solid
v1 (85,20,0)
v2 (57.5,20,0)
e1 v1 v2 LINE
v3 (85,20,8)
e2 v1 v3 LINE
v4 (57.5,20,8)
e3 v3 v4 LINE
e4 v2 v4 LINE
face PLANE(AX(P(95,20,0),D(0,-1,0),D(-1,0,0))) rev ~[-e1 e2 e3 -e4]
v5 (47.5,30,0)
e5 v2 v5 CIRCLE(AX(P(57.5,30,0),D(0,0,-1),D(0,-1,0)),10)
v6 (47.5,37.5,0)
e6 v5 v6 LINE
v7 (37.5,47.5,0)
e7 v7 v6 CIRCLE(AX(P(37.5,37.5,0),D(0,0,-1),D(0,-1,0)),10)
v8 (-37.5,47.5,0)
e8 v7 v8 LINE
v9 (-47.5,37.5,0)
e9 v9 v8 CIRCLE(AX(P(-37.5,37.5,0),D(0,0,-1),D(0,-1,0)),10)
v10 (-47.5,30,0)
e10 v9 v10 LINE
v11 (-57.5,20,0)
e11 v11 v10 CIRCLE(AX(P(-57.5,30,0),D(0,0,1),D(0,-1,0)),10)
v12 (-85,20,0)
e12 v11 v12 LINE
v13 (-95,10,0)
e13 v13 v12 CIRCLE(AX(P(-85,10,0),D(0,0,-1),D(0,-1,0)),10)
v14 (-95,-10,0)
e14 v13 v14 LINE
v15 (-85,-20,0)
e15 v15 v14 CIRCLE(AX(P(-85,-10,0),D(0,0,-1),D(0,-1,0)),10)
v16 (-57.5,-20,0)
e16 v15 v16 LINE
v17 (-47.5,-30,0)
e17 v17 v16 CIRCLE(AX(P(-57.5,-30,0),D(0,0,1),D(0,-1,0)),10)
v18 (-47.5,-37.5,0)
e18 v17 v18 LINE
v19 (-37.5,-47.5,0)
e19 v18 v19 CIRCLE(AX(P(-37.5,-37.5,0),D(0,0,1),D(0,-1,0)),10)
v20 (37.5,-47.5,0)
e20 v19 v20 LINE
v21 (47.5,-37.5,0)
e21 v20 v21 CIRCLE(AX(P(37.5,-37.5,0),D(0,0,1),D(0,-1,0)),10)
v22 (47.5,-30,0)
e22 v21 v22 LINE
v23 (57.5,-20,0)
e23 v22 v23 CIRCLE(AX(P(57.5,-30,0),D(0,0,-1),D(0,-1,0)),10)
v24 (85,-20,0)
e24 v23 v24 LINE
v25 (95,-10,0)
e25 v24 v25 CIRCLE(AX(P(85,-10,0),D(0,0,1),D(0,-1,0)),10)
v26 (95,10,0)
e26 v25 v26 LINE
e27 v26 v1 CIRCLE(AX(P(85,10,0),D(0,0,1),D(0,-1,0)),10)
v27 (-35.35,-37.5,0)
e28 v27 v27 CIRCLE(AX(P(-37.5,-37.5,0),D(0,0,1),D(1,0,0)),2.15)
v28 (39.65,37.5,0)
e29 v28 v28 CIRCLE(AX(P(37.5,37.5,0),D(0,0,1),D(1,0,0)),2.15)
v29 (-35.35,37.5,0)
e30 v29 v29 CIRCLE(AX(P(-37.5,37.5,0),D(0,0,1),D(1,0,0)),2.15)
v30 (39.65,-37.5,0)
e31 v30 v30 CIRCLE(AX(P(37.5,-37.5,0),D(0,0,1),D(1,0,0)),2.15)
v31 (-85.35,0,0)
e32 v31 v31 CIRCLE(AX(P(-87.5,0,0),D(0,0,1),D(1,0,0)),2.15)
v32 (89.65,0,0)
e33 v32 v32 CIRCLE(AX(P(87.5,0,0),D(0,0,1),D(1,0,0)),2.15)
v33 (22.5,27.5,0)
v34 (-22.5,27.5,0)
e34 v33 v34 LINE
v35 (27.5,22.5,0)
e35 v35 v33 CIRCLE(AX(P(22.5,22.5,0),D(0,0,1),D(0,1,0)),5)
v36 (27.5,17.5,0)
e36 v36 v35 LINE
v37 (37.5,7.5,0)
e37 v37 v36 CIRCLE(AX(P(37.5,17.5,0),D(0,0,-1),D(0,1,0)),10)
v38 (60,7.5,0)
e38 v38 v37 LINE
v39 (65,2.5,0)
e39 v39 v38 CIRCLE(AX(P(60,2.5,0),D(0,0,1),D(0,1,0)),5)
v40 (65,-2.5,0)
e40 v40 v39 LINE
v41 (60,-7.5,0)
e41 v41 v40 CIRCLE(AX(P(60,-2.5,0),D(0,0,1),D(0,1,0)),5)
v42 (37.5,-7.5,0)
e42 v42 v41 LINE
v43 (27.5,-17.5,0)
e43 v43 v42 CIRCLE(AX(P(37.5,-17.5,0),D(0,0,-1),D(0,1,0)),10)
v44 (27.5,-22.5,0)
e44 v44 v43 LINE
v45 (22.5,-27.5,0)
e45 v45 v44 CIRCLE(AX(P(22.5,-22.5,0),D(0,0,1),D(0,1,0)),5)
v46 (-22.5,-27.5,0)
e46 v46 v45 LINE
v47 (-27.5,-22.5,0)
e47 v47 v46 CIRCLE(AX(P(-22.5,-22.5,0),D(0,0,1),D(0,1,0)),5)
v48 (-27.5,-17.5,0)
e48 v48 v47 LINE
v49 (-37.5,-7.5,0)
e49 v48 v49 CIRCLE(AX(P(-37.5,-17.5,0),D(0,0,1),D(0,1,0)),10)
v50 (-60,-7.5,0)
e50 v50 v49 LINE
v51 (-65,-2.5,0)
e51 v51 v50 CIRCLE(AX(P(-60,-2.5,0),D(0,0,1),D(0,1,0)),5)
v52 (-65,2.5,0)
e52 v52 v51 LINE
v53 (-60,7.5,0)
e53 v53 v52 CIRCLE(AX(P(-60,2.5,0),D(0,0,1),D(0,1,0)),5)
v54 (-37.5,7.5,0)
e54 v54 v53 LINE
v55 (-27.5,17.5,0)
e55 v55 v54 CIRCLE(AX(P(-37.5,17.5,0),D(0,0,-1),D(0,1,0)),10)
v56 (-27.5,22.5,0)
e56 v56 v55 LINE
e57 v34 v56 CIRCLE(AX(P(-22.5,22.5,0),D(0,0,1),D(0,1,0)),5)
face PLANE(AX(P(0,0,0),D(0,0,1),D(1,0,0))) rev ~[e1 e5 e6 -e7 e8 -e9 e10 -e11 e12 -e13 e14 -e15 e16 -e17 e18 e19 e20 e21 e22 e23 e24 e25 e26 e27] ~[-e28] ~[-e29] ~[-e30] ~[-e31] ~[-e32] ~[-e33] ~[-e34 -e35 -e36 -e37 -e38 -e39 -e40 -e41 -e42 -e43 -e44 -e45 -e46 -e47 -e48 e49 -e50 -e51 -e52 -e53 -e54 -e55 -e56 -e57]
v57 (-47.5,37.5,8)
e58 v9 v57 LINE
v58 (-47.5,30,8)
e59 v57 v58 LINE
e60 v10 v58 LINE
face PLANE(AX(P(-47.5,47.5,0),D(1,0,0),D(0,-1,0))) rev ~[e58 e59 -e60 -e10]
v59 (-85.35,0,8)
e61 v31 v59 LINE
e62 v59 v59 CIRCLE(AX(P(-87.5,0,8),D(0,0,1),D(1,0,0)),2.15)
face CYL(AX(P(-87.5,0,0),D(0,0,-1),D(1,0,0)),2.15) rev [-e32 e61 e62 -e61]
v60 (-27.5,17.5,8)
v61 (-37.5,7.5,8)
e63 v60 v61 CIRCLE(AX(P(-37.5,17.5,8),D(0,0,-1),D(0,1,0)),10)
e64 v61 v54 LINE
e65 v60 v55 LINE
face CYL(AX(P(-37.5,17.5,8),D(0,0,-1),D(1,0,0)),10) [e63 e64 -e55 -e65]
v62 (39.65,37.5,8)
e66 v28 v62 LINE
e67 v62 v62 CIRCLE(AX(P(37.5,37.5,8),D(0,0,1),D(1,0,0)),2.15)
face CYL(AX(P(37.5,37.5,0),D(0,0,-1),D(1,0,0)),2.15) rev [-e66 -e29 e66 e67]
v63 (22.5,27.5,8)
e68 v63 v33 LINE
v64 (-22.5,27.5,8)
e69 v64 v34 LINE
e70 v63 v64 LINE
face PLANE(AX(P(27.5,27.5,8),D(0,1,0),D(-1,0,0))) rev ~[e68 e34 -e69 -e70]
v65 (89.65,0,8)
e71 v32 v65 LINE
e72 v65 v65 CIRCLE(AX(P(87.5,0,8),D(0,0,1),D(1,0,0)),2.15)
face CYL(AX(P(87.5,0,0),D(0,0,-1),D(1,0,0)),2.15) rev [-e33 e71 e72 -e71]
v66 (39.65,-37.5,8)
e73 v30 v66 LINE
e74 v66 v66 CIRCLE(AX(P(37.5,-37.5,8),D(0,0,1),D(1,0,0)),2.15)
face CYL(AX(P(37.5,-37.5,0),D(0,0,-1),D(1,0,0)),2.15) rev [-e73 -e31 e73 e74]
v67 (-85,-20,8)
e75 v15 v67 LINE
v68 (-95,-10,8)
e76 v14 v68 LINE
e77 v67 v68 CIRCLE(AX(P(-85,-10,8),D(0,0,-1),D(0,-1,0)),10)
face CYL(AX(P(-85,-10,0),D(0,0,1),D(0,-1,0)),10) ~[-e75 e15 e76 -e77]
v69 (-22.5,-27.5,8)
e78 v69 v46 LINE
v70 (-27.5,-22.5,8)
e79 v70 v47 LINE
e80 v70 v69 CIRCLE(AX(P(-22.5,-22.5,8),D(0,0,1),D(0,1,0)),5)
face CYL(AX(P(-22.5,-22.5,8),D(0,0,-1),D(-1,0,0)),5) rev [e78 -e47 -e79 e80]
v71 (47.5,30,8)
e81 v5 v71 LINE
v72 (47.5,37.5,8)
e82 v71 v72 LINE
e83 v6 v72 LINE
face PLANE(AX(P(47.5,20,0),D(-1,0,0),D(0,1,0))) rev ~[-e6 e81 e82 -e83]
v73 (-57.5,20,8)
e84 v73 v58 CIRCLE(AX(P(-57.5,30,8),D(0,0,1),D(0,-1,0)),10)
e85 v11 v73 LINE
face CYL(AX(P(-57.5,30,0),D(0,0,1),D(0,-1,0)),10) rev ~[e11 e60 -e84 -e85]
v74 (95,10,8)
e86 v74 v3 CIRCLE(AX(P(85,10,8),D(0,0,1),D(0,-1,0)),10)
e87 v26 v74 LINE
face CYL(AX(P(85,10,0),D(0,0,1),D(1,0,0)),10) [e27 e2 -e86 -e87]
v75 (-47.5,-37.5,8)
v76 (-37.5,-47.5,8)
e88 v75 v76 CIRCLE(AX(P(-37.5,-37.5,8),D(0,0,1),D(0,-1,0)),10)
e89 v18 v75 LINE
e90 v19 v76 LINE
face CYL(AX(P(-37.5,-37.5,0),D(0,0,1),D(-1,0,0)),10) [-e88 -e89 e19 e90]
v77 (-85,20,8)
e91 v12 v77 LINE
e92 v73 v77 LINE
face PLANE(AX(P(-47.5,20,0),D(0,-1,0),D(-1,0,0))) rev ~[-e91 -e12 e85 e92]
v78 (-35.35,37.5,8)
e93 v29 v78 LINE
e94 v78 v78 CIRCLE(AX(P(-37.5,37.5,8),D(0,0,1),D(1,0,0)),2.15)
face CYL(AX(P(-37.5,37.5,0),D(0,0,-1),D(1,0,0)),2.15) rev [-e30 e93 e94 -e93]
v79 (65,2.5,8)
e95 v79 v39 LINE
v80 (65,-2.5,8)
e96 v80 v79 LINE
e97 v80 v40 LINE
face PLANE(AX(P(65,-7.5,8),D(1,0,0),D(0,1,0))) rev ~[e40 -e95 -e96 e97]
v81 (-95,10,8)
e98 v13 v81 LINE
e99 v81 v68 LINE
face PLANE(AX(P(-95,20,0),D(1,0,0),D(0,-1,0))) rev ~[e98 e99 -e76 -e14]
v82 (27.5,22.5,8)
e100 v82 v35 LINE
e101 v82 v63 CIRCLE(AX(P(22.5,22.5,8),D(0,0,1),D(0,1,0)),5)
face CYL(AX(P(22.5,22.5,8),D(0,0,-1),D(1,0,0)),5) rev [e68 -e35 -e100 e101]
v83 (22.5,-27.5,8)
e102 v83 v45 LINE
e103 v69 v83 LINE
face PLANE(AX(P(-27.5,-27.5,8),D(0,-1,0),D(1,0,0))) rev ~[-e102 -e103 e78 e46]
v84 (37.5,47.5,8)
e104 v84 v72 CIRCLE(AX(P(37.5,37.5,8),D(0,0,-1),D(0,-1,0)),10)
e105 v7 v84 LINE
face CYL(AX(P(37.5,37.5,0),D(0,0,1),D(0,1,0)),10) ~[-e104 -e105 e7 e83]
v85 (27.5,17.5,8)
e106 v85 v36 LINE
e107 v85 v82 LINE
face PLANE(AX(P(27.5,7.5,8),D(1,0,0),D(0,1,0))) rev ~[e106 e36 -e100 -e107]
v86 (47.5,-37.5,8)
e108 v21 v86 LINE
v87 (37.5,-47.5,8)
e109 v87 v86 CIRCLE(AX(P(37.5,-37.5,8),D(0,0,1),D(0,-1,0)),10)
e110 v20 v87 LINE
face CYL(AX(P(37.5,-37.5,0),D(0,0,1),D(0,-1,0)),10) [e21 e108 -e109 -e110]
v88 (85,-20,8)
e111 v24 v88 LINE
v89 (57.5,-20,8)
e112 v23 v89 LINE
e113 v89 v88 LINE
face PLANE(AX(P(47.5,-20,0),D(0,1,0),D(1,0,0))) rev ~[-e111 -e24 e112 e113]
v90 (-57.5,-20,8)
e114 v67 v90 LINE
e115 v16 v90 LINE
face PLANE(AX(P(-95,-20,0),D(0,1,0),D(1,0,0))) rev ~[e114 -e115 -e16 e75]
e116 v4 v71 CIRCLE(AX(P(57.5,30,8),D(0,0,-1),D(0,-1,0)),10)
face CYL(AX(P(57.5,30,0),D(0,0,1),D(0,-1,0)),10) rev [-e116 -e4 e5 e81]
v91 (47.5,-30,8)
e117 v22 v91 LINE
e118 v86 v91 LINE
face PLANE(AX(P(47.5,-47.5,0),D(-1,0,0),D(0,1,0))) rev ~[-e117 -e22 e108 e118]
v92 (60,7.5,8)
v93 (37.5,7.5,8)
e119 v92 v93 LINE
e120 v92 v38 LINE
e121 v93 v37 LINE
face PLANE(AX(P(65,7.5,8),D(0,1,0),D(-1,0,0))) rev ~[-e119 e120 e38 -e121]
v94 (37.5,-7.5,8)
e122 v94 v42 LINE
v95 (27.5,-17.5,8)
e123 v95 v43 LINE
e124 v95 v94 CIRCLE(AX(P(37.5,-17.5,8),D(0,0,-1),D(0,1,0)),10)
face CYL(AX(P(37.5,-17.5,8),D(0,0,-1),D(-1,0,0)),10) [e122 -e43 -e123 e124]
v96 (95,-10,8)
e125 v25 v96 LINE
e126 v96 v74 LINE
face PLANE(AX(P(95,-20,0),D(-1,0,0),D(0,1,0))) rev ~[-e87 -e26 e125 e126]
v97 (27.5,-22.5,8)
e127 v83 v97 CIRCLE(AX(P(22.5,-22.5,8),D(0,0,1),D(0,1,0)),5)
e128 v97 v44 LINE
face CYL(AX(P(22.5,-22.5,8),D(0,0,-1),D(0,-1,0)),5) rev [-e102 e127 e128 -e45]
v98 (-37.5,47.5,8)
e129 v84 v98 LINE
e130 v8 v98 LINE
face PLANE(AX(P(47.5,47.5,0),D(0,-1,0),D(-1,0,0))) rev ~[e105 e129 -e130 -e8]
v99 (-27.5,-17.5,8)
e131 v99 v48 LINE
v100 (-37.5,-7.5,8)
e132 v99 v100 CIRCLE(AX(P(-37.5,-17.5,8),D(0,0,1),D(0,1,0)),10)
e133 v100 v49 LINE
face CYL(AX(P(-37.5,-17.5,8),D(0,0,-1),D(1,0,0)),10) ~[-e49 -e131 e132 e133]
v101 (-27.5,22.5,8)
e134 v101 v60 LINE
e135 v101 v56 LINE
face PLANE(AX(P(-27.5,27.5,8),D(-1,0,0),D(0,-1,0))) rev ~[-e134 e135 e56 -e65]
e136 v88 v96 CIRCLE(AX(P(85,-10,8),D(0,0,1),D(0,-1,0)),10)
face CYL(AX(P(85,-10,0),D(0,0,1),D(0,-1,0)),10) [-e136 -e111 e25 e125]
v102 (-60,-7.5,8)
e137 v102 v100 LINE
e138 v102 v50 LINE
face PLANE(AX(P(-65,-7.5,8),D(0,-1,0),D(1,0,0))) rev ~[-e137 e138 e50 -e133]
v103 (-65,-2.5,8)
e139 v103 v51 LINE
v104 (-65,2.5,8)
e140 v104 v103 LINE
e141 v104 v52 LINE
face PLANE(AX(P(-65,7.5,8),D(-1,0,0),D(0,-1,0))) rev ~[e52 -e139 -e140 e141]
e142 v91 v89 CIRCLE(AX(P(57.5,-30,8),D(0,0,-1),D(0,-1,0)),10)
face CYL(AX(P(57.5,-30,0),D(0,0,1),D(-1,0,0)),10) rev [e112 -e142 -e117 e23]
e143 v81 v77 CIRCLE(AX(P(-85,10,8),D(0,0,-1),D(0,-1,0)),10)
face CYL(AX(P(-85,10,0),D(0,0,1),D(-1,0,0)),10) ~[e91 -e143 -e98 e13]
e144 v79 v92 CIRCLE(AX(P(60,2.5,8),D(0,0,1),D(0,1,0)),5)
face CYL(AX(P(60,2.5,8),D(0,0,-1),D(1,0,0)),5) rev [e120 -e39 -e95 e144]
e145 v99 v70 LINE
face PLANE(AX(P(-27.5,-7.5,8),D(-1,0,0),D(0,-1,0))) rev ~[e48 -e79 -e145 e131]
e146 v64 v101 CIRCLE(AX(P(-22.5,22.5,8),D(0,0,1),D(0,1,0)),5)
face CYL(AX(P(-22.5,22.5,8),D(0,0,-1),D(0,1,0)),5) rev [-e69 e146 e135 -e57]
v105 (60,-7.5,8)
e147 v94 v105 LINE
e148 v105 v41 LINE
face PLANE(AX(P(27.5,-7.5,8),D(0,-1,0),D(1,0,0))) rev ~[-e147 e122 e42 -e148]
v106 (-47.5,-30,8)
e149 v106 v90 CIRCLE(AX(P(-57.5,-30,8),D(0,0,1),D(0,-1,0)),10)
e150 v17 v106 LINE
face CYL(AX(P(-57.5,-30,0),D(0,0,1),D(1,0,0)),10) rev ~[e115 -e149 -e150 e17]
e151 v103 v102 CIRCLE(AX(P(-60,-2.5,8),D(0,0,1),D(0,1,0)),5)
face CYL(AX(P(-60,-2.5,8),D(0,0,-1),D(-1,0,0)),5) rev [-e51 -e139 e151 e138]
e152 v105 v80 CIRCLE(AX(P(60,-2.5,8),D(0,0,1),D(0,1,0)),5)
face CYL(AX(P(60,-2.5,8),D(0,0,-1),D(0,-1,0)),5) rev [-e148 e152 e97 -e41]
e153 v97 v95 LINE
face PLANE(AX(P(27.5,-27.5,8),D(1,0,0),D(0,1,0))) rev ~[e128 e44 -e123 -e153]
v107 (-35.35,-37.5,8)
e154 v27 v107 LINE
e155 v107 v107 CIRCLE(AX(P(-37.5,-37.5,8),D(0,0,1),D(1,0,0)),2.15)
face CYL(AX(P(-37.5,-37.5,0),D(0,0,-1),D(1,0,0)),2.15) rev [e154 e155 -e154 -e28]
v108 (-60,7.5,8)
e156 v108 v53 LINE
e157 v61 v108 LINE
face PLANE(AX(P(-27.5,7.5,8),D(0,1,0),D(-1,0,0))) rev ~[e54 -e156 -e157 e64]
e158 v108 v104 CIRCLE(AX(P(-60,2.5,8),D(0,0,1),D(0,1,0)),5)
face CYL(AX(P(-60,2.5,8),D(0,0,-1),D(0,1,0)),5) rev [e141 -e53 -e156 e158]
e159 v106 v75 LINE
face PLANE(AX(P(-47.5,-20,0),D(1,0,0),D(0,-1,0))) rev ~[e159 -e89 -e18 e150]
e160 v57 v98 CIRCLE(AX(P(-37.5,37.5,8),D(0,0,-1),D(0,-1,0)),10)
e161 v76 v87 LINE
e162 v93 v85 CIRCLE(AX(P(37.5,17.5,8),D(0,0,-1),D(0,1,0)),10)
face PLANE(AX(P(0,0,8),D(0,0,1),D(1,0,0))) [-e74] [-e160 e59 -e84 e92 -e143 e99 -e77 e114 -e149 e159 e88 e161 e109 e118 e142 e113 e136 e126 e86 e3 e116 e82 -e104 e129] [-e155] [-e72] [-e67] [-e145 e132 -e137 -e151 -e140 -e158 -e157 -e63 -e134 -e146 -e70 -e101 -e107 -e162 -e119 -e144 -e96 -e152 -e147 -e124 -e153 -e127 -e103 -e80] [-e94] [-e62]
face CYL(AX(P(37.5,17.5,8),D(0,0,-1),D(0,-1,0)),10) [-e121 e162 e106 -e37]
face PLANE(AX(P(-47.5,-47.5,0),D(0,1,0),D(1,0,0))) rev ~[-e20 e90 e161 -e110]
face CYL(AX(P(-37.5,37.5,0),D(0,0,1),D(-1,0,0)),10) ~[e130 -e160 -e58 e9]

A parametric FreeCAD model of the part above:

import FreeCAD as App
import Part
import Sketcher
from FreeCAD import Vector


def edges_at(feature, points):
    """Names of the edges that pass closest to the given points."""
    edges = feature.Shape.Edges
    near = lambda p: min(range(len(edges)), key=lambda i: edges[i].distToShape(Part.Vertex(*p))[0])
    return sorted({f"Edge{near(p) + 1}" for p in points})


def add_polygon(sketch, points):
    """Adds a closed chain of lines whose ends are joined by coincident constraints."""
    first, n = sketch.GeometryCount, len(points)
    for a, b in zip(points, points[1:] + points[:1]):
        sketch.addGeometry(Part.LineSegment(App.Vector(*a, 0), App.Vector(*b, 0)), False)
    for i in range(n):
        sketch.addConstraint(Sketcher.Constraint("Coincident", first + i, 2, first + (i + 1) % n, 1))

doc = App.newDocument("Part")
body = doc.addObject("PartDesign::Body", "Body")

# Sketch on XY plane
sketch1 = doc.addObject("Sketcher::SketchObject", "Sketch")
body.addObject(sketch1)
sketch1.AttachmentSupport = (doc.XY_Plane, [""])
sketch1.MapMode = "FlatFace"
add_polygon(sketch1, [(-47.5, -20), (-47.5, -47.5), (47.5, -47.5), (47.5, -20), (95, -20), (95, 20), (47.5, 20), (47.5, 47.5), (-47.5, 47.5), (-47.5, 20), (-95, 20), (-95, -20)])  # lines 0-11
sketch1.addGeometry(Part.Circle(Vector(-37.5, -37.5, 0), Vector(0, 0, 1), 2.1), False)  # 12
sketch1.addGeometry(Part.Circle(Vector(37.5, -37.5, 0), Vector(0, 0, 1), 2.1), False)  # 13
sketch1.addGeometry(Part.Circle(Vector(-87.5, 0, 0), Vector(0, 0, 1), 2.1), False)  # 14
sketch1.addGeometry(Part.Circle(Vector(37.5, 37.5, 0), Vector(0, 0, 1), 2.1), False)  # 15
sketch1.addGeometry(Part.Circle(Vector(-37.5, 37.5, 0), Vector(0, 0, 1), 2.1), False)  # 16
sketch1.addGeometry(Part.Circle(Vector(87.5, 0, 0), Vector(0, 0, 1), 2.1), False)  # 17
sketch1.addConstraint([
    Sketcher.Constraint("Vertical", 0),
    Sketcher.Constraint("Horizontal", 1),
    Sketcher.Constraint("Vertical", 2),
    Sketcher.Constraint("Horizontal", 3),
    Sketcher.Constraint("Vertical", 4),
    Sketcher.Constraint("Horizontal", 5),
    Sketcher.Constraint("Vertical", 6),
    Sketcher.Constraint("Horizontal", 7),
    Sketcher.Constraint("Vertical", 8),
    Sketcher.Constraint("Horizontal", 9),
    Sketcher.Constraint("Vertical", 10),
    Sketcher.Constraint("Horizontal", 11),
    Sketcher.Constraint("Equal", 12, 13),
    Sketcher.Constraint("Equal", 13, 14),
    Sketcher.Constraint("Equal", 14, 15),
    Sketcher.Constraint("Equal", 15, 16),
    Sketcher.Constraint("Equal", 16, 17),
    Sketcher.Constraint("Symmetric", 12, 3, 15, 3, -1, 1),
    Sketcher.Constraint("Symmetric", 13, 3, 16, 3, -1, 1),
    Sketcher.Constraint("Symmetric", 14, 3, 17, 3, -1, 1),
    Sketcher.Constraint("Symmetric", 0, 2, 6, 2, -1, 1),
    Sketcher.Constraint("Symmetric", 2, 2, 8, 2, -1, 1),
    Sketcher.Constraint("Symmetric", 4, 2, 10, 2, -1, 1),
    Sketcher.Constraint("Symmetric", 12, 3, 13, 3, -2),
    Sketcher.Constraint("Symmetric", 5, 2, 8, 2, -2),
    Sketcher.Constraint("PointOnObject", 14, 3, -1),
    Sketcher.Constraint("Diameter", 12, 4.3),
    Sketcher.Constraint("DistanceX", 1, 1, 1, 2, 95.0),
    Sketcher.Constraint("DistanceY", 4, 1, 4, 2, 40.0),
    Sketcher.Constraint("DistanceX", -1, 1, 3, 2, 95.0),
    Sketcher.Constraint("DistanceX", 12, 3, 13, 3, 75.0),
    Sketcher.Constraint("DistanceY", 13, 3, 15, 3, 75.0),
    Sketcher.Constraint("DistanceX", 14, 3, 0, 2, 40.0),
    Sketcher.Constraint("DistanceY", 0, 2, 7, 2, 95.0),
])
pad1 = doc.addObject("PartDesign::Pad", "Pad")
body.addObject(pad1)
pad1.Profile = sketch1
pad1.Length = 8

# Sketch on XY plane
sketch2 = doc.addObject("Sketcher::SketchObject", "Sketch001")
body.addObject(sketch2)
sketch2.AttachmentSupport = (doc.XY_Plane, [""])
sketch2.MapMode = "FlatFace"
sketch2.AttachmentOffset = App.Placement(Vector(0, 0, 8), App.Rotation())
add_polygon(sketch2, [(-28, -8), (-28, -28), (28, -28), (28, -8), (65, -8), (65, 8), (28, 8), (28, 28), (-28, 28), (-28, 8), (-65, 8), (-65, -8)])  # lines 0-11
sketch2.addConstraint([
    Sketcher.Constraint("Vertical", 0),
    Sketcher.Constraint("Horizontal", 1),
    Sketcher.Constraint("Vertical", 2),
    Sketcher.Constraint("Horizontal", 3),
    Sketcher.Constraint("Vertical", 4),
    Sketcher.Constraint("Horizontal", 5),
    Sketcher.Constraint("Vertical", 6),
    Sketcher.Constraint("Horizontal", 7),
    Sketcher.Constraint("Vertical", 8),
    Sketcher.Constraint("Horizontal", 9),
    Sketcher.Constraint("Vertical", 10),
    Sketcher.Constraint("Horizontal", 11),
    Sketcher.Constraint("Symmetric", 0, 2, 6, 2, -1, 1),
    Sketcher.Constraint("Symmetric", 2, 2, 8, 2, -1, 1),
    Sketcher.Constraint("Symmetric", 4, 2, 10, 2, -1, 1),
    Sketcher.Constraint("Symmetric", 5, 2, 8, 2, -2),
    Sketcher.Constraint("DistanceX", 1, 1, 1, 2, 55.0),
    Sketcher.Constraint("DistanceY", 4, 1, 4, 2, 15.0),
    Sketcher.Constraint("DistanceY", 1, 2, 6, 2, 55.0),
    Sketcher.Constraint("DistanceX", 3, 1, 3, 2, 37.5),
])
pocket1 = doc.addObject("PartDesign::Pocket", "Pocket")
body.addObject(pocket1)
pocket1.Profile = sketch2
pocket1.Type = "ThroughAll"
doc.recompute()

fillet = doc.addObject("PartDesign::Fillet", "Fillet")
body.addObject(fillet)
fillet.Base = (pocket1, edges_at(pocket1, [
    (-47.5, -47.5, 4),
    (-47.5, -20, 4),
    (-95, -20, 4),
    (-47.5, 47.5, 4),
    (-95, 20, 4),
    (47.5, 47.5, 4),
    (95, 20, 4),
    (47.5, 20, 4),
    (95, -20, 4),
    (47.5, -20, 4),
    (47.5, -47.5, 4),
    (-47.5, 20, 4),
    (27.5, -7.5, 4),
    (27.5, 7.5, 4),
    (-27.5, 7.5, 4),
    (-27.5, -7.5, 4),
]))
fillet.Radius = 10
doc.recompute()

fillet2 = doc.addObject("PartDesign::Fillet", "Fillet001")
body.addObject(fillet2)
fillet2.Base = (fillet, edges_at(fillet, [
    (27.5, 27.5, 4),
    (65, 7.5, 4),
    (65, -7.5, 4),
    (27.5, -27.5, 4),
    (-27.5, -27.5, 4),
    (-27.5, 27.5, 4),
    (-65, -7.5, 4),
    (-65, 7.5, 4),
]))
fillet2.Radius = 5

doc.recompute()
